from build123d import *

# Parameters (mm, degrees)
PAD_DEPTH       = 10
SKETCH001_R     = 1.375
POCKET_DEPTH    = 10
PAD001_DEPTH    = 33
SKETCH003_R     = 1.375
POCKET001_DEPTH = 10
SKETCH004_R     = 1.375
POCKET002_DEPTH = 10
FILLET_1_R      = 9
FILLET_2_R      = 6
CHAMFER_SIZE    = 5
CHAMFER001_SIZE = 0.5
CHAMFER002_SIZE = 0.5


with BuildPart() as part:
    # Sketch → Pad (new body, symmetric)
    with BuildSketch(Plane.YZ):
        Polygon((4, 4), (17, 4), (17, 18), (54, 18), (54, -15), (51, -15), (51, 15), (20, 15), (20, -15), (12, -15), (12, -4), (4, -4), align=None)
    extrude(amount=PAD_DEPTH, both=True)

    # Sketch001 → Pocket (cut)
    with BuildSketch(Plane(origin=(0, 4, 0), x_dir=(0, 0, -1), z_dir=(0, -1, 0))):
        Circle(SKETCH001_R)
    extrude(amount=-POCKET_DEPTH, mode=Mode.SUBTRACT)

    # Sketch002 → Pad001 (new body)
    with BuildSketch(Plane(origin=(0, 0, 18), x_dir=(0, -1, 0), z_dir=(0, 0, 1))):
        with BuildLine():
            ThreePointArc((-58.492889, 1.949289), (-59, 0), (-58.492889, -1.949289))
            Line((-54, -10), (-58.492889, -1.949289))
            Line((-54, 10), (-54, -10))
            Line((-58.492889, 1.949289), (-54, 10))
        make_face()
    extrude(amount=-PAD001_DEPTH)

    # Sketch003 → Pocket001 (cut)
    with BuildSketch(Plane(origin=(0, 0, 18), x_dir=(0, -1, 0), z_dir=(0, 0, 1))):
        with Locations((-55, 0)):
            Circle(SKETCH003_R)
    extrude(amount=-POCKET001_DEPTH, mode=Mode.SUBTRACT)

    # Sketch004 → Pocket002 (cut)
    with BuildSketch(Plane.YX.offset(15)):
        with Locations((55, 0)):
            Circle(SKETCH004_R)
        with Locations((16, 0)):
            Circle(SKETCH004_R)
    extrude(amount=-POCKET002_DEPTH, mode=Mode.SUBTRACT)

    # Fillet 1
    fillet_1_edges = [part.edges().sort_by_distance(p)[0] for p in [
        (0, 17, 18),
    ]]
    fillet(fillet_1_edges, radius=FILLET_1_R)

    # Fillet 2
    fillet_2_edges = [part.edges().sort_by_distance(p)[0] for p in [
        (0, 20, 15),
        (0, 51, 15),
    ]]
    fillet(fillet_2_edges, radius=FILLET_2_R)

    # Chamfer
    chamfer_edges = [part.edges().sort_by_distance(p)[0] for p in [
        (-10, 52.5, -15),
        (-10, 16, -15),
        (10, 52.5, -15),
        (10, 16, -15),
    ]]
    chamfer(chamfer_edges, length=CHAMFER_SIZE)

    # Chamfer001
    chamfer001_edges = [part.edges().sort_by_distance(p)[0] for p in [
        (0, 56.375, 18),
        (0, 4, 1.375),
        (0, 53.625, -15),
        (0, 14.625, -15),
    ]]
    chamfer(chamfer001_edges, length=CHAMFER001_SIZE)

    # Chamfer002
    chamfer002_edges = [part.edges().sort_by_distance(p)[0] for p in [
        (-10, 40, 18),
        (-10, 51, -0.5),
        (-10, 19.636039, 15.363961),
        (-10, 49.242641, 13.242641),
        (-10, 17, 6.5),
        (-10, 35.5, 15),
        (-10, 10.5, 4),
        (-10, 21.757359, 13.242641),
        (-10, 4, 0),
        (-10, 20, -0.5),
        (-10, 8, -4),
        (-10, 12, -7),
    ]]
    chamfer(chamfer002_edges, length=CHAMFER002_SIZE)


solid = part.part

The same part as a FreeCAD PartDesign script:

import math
import FreeCAD as App
import Part
import Sketcher

V = App.Vector


def edges_at(feature, points):
    """Names of the edges that pass closest to the given points."""
    edges = feature.Shape.Edges
    near = lambda p: min(range(len(edges)), key=lambda i: edges[i].distToShape(Part.Vertex(*p))[0])
    return sorted({f"Edge{near(p) + 1}" for p in points})


def add_polygon(sketch, points):
    """Adds a closed chain of lines whose ends are joined by coincident constraints."""
    first, n = sketch.GeometryCount, len(points)
    for a, b in zip(points, points[1:] + points[:1]):
        sketch.addGeometry(Part.LineSegment(App.Vector(*a, 0), App.Vector(*b, 0)), False)
    for i in range(n):
        sketch.addConstraint(Sketcher.Constraint("Coincident", first + i, 2, first + (i + 1) % n, 1))

doc = App.newDocument("Part")
body = doc.addObject("PartDesign::Body", "Body")

sketch1 = doc.addObject("Sketcher::SketchObject", "Sketch")
body.addObject(sketch1)
sketch1.AttachmentSupport = (doc.YZ_Plane, [""])
sketch1.MapMode = "FlatFace"
add_polygon(sketch1, [(17, 4), (4, 4), (4, -4), (12, -4), (12, -15), (20, -15), (20, 15), (51, 15), (51, -15), (54, -15), (54, 18), (17, 18)])
sketch1.addConstraint([
    Sketcher.Constraint("Horizontal", 0),
    Sketcher.Constraint("Vertical", 1),
    Sketcher.Constraint("Horizontal", 2),
    Sketcher.Constraint("Vertical", 3),
    Sketcher.Constraint("Horizontal", 4),
    Sketcher.Constraint("Vertical", 5),
    Sketcher.Constraint("Horizontal", 6),
    Sketcher.Constraint("Vertical", 7),
    Sketcher.Constraint("Horizontal", 8),
    Sketcher.Constraint("Vertical", 9),
    Sketcher.Constraint("Horizontal", 10),
    Sketcher.Constraint("Vertical", 11),
    Sketcher.Constraint("Horizontal", 4, 2, 7, 2),
    Sketcher.Constraint("Equal", 2, 4),
    Sketcher.Constraint("Equal", 4, 1),
    Sketcher.Constraint("DistanceX", 0, 2, 0, 1, 13.0),
    Sketcher.Constraint("DistanceX", 2, 1, 2, 2, 8.0),
    Sketcher.Constraint("DistanceX", 6, 1, 6, 2, 31.0),
    Sketcher.Constraint("DistanceX", 8, 1, 8, 2, 3.0),
    Sketcher.Constraint("DistanceY", 3, 2, 3, 1, 11.0),
    Sketcher.Constraint("DistanceY", 5, 1, 5, 2, 30.0),
    Sketcher.Constraint("DistanceY", 9, 1, 9, 2, 33.0),
    Sketcher.Constraint("DistanceX", -1, 1, 0, 2, 4.0),
    Sketcher.Constraint("DistanceY", -1, 1, 0, 2, 4.0),
])
pad1 = doc.addObject("PartDesign::Pad", "Pad")
body.addObject(pad1)
pad1.Profile = sketch1
pad1.Length = 20
pad1.Midplane = True

sketch2 = doc.addObject("Sketcher::SketchObject", "Sketch001")
body.addObject(sketch2)
sketch2.AttachmentSupport = (doc.XZ_Plane, [""])
sketch2.MapMode = "FlatFace"
sketch2.AttachmentOffset = App.Placement(V(0, 0, -4), App.Rotation())
sketch2.addGeometry(Part.Circle(V(0, 0, 0), V(0, 0, 1), 1.4), False)
sketch2.addConstraint([
    Sketcher.Constraint("Coincident", 0, 3, -1, 1),
    Sketcher.Constraint("Diameter", 0, 2.75),
])
pocket1 = doc.addObject("PartDesign::Pocket", "Pocket")
body.addObject(pocket1)
pocket1.Profile = sketch2
pocket1.Length = 10

sketch3 = doc.addObject("Sketcher::SketchObject", "Sketch002")
body.addObject(sketch3)
sketch3.AttachmentSupport = (doc.XY_Plane, [""])
sketch3.MapMode = "FlatFace"
sketch3.AttachmentOffset = App.Placement(V(0, 0, 18), App.Rotation())
sketch3.addGeometry([
    Part.ArcOfCircle(Part.Circle(V(0, 55, 0), V(0, 0, 1), 4), math.radians(61), math.radians(119)),
    Part.LineSegment(V(-1.9, 58.5, 0), V(-10, 54, 0)),
    Part.LineSegment(V(-10, 54, 0), V(10, 54, 0)),
    Part.LineSegment(V(10, 54, 0), V(1.9, 58.5, 0)),
], False)
sketch3.addConstraint([
    Sketcher.Constraint("Tangent", 0, 2, 1, 1),
    Sketcher.Constraint("Coincident", 1, 2, 2, 1),
    Sketcher.Constraint("Coincident", 2, 2, 3, 1),
    Sketcher.Constraint("Tangent", 3, 2, 0, 1),
    Sketcher.Constraint("Horizontal", 2),
    Sketcher.Constraint("Symmetric", 0, 2, 3, 2, -2),
    Sketcher.Constraint("Radius", 0, 4.000001),
    Sketcher.Constraint("DistanceX", 2, 1, 2, 2, 20.0),
    Sketcher.Constraint("DistanceY", -1, 1, 0, 3, 54.999999),
    Sketcher.Constraint("DistanceY", -1, 1, 1, 2, 54.0),
])
pad2 = doc.addObject("PartDesign::Pad", "Pad001")
body.addObject(pad2)
pad2.Profile = sketch3
pad2.Length = 33
pad2.Reversed = True

sketch4 = doc.addObject("Sketcher::SketchObject", "Sketch003")
body.addObject(sketch4)
sketch4.AttachmentSupport = (doc.XY_Plane, [""])
sketch4.MapMode = "FlatFace"
sketch4.AttachmentOffset = App.Placement(V(0, 0, 18), App.Rotation())
sketch4.addGeometry(Part.Circle(V(0, 55, 0), V(0, 0, 1), 1.4), False)
sketch4.addConstraint([
    Sketcher.Constraint("PointOnObject", 0, 3, -2),
    Sketcher.Constraint("Diameter", 0, 2.75),
    Sketcher.Constraint("DistanceY", -1, 1, 0, 3, 55.0),
])
pocket2 = doc.addObject("PartDesign::Pocket", "Pocket001")
body.addObject(pocket2)
pocket2.Profile = sketch4
pocket2.Length = 10

sketch5 = doc.addObject("Sketcher::SketchObject", "Sketch004")
body.addObject(sketch5)
sketch5.AttachmentSupport = (doc.XY_Plane, [""])
sketch5.MapMode = "FlatFace"
sketch5.AttachmentOffset = App.Placement(V(0, 0, -15), App.Rotation())
sketch5.addGeometry([
    Part.Circle(V(0, 55, 0), V(0, 0, 1), 1.4),
    Part.Circle(V(0, 16, 0), V(0, 0, 1), 1.4),
], False)
sketch5.addConstraint([
    Sketcher.Constraint("Equal", 0, 1),
    Sketcher.Constraint("PointOnObject", 0, 3, -2),
    Sketcher.Constraint("PointOnObject", 1, 3, -2),
    Sketcher.Constraint("Diameter", 0, 2.75),
    Sketcher.Constraint("DistanceY", -1, 1, 0, 3, 55.0),
    Sketcher.Constraint("DistanceY", -1, 1, 1, 3, 16.0),
])
pocket3 = doc.addObject("PartDesign::Pocket", "Pocket002")
body.addObject(pocket3)
pocket3.Profile = sketch5
pocket3.Length = 10
pocket3.Reversed = True
doc.recompute()

fillet = doc.addObject("PartDesign::Fillet", "Fillet")
body.addObject(fillet)
fillet.Base = (pocket3, edges_at(pocket3, [(0, 17, 18)]))
fillet.Radius = 9
doc.recompute()

fillet2 = doc.addObject("PartDesign::Fillet", "Fillet001")
body.addObject(fillet2)
fillet2.Base = (fillet, edges_at(fillet, [(0, 20, 15), (0, 51, 15)]))
fillet2.Radius = 6
doc.recompute()

chamfer = doc.addObject("PartDesign::Chamfer", "Chamfer")
body.addObject(chamfer)
chamfer.Base = (fillet2, edges_at(fillet2, [
    (-10, 52.5, -15),
    (-10, 16, -15),
    (10, 52.5, -15),
    (10, 16, -15),
]))
chamfer.Size = 5
doc.recompute()

chamfer2 = doc.addObject("PartDesign::Chamfer", "Chamfer001")
body.addObject(chamfer2)
chamfer2.Base = (chamfer, edges_at(chamfer, [
    (0, 56.375, 18),
    (0, 4, 1.375),
    (0, 53.625, -15),
    (0, 14.625, -15),
]))
chamfer2.Size = 0.5
doc.recompute()

chamfer3 = doc.addObject("PartDesign::Chamfer", "Chamfer002")
body.addObject(chamfer3)
chamfer3.Base = (chamfer2, edges_at(chamfer2, [
    (-10, 40, 18),
    (-10, 51, -0.5),
    (-10, 19.636, 15.364),
    (-10, 49.243, 13.243),
    (-10, 17, 6.5),
    (-10, 35.5, 15),
    (-10, 10.5, 4),
    (-10, 21.757, 13.243),
    (-10, 4, 0),
    (-10, 20, -0.5),
    (-10, 8, -4),
    (-10, 12, -7),
]))
chamfer3.Size = 0.5

doc.recompute()
